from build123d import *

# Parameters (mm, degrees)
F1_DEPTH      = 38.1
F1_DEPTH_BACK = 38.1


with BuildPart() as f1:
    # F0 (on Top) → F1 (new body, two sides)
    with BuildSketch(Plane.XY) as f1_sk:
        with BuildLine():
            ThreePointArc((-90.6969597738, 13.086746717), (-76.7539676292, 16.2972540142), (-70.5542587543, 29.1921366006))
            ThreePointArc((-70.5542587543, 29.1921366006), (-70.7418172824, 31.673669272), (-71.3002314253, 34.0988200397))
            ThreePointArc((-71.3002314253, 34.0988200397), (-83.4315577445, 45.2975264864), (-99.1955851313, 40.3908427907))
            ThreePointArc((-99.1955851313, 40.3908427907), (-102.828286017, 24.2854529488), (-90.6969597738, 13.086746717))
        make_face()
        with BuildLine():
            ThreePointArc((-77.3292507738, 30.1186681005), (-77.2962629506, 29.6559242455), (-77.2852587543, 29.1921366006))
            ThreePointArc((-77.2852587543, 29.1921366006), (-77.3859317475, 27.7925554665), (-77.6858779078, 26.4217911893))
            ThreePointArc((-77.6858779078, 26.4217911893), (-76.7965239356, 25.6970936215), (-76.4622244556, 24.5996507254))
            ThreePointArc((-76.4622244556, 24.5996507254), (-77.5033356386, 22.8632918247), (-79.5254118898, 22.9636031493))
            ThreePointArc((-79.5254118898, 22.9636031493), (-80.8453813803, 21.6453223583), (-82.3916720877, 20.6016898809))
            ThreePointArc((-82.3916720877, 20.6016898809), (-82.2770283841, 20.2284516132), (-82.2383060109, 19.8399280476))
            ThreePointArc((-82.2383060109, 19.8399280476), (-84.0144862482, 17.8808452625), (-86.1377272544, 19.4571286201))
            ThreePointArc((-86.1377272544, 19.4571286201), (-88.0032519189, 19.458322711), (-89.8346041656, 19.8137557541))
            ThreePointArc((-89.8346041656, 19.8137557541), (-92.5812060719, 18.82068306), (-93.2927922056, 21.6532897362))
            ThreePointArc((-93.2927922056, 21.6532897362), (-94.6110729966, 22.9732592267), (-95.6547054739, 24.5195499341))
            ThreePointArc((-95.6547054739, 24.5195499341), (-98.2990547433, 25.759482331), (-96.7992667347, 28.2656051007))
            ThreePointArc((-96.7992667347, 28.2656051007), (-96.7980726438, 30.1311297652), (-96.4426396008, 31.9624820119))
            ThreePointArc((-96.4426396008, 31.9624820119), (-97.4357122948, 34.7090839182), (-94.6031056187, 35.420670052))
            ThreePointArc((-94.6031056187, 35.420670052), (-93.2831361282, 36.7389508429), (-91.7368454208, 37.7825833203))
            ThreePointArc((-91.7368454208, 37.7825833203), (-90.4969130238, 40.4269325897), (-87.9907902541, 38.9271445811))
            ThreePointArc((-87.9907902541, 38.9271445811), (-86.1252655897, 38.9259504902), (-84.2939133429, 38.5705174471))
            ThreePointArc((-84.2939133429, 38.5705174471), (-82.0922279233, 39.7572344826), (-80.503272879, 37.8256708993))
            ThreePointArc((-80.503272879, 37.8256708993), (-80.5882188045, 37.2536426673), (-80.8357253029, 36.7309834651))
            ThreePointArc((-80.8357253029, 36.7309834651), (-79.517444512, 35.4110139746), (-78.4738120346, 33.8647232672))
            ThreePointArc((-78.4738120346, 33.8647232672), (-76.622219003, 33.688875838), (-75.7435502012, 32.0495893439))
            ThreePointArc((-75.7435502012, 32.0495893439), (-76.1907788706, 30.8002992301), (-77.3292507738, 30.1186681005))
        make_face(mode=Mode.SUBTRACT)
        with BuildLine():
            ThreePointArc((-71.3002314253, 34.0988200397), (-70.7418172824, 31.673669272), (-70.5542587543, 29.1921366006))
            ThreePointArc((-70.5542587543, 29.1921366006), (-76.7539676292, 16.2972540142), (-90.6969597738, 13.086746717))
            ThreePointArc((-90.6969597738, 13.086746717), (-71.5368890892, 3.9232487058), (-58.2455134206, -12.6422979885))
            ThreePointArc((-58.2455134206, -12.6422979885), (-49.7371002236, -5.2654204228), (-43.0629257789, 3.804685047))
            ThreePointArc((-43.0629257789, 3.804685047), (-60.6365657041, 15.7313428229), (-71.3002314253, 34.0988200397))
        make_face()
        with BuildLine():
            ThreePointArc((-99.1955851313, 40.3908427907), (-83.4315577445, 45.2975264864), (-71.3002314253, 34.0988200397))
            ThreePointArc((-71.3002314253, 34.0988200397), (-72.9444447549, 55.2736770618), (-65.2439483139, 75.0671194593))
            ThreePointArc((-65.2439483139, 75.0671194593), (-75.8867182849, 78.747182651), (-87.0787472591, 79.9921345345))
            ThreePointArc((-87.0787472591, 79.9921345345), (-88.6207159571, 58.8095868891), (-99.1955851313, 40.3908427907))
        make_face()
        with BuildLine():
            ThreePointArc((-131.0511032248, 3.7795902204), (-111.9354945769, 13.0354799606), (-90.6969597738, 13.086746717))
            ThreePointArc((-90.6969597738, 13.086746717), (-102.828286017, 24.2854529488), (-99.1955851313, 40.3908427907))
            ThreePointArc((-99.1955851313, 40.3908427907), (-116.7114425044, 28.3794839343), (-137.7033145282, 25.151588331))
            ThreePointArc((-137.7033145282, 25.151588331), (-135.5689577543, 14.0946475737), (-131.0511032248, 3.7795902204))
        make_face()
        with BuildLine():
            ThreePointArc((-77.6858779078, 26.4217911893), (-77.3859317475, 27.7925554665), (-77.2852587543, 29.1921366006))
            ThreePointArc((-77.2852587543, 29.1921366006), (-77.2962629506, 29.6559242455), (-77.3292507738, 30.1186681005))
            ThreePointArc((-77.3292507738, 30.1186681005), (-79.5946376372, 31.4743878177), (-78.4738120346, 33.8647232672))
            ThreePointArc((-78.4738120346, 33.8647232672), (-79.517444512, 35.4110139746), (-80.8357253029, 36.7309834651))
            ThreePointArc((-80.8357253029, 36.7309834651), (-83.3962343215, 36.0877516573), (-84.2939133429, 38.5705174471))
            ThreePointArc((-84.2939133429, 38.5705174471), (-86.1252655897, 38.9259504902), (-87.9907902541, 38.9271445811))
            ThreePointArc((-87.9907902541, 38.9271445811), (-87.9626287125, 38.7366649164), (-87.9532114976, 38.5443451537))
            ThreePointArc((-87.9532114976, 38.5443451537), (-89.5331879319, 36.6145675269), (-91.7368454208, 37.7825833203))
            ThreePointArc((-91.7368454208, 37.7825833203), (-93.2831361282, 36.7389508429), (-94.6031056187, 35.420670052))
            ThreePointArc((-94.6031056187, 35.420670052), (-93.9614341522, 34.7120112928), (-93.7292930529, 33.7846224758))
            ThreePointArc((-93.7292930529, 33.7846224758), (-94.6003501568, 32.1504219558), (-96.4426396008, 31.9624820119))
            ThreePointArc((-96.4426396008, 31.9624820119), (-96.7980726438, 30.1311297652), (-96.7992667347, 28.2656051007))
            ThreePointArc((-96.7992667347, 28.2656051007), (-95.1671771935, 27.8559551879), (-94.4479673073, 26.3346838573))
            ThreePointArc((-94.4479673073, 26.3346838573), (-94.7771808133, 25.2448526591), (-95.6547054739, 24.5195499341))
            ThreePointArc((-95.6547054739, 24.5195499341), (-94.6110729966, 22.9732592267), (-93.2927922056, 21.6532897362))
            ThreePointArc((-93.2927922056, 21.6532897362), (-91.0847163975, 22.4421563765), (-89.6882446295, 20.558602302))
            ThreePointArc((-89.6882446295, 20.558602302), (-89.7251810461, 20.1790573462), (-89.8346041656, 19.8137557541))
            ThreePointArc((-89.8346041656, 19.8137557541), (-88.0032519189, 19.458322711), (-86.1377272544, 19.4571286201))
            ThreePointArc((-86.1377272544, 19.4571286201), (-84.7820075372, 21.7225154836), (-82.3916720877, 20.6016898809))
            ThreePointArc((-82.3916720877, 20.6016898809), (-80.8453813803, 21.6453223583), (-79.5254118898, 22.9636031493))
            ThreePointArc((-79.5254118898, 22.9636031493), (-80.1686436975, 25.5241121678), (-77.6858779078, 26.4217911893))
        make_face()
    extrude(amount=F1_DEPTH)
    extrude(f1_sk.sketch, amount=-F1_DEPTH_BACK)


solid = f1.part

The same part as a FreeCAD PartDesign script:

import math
import FreeCAD as App
import Part
import Sketcher

V = App.Vector
Q = App.Units.Quantity

doc = App.newDocument("Part")
body = doc.addObject("PartDesign::Body", "Body")

# Sketch on XY plane
sketch1 = doc.addObject("Sketcher::SketchObject", "Sketch")
body.addObject(sketch1)
sketch1.AttachmentSupport = (doc.XY_Plane, [""])
sketch1.MapMode = "FlatFace"
sketch1.addGeometry(Part.ArcOfCircle(Part.Circle(V(-101.2, -33.49, 0), V(0, 0, 1), 47.75), math.radians(26), math.radians(77)), False)
sketch1.addGeometry(Part.ArcOfCircle(Part.Circle(V(-87.06, 29.19, 0), V(0, 0, 1), 50.8), math.radians(-55), math.radians(-30)), False)
sketch1.addGeometry(Part.ArcOfCircle(Part.Circle(V(-25.71, 48.29, 0), V(0, 0, 1), 47.75), math.radians(146), math.radians(249)), False)
sketch1.addGeometry(Part.ArcOfCircle(Part.Circle(V(-87.06, 29.19, 0), V(0, 0, 1), 50.8), math.radians(65), math.radians(90)), False)
sketch1.addGeometry(Part.ArcOfCircle(Part.Circle(V(-134.28, 72.78, 0), V(0, 0, 1), 47.75), math.radians(-43), math.radians(9)), False)
sketch1.addGeometry(Part.ArcOfCircle(Part.Circle(V(-134.28, 72.78, 0), V(0, 0, 1), 47.75), math.radians(-94), math.radians(-43)), False)
sketch1.addGeometry(Part.ArcOfCircle(Part.Circle(V(-87.06, 29.19, 0), V(0, 0, 1), 50.8), math.radians(-175), math.radians(-150)), False)
sketch1.addGeometry(Part.ArcOfCircle(Part.Circle(V(-101.2, -33.49, 0), V(0, 0, 1), 47.75), math.radians(77), math.radians(129)), False)
sketch1.addGeometry(Part.ArcOfCircle(Part.Circle(V(-77.71, 32.05, 0), V(0, 0, 1), 1.97), math.radians(-79), math.radians(0)), False)
sketch1.addGeometry(Part.ArcOfCircle(Part.Circle(V(-77.71, 32.05, 0), V(0, 0, 1), 1.97), math.radians(113), math.radians(281)), False)
sketch1.addGeometry(Part.ArcOfCircle(Part.Circle(V(-77.71, 32.05, 0), V(0, 0, 1), 1.97), math.radians(0), math.radians(113)), False)
sketch1.addGeometry(Part.ArcOfCircle(Part.Circle(V(-78.43, 24.6, 0), V(0, 0, 1), 1.97), math.radians(0), math.radians(68)), False)
sketch1.addGeometry(Part.ArcOfCircle(Part.Circle(V(-78.43, 24.6, 0), V(0, 0, 1), 1.97), math.radians(68), math.radians(360)), False)
sketch1.addGeometry(Part.ArcOfCircle(Part.Circle(V(-84.21, 19.84, 0), V(0, 0, 1), 1.97), math.radians(0), math.radians(23)), False)
sketch1.addGeometry(Part.ArcOfCircle(Part.Circle(V(-84.21, 19.84, 0), V(0, 0, 1), 1.97), math.radians(-169), math.radians(0)), False)
sketch1.addGeometry(Part.ArcOfCircle(Part.Circle(V(-84.21, 19.84, 0), V(0, 0, 1), 1.97), math.radians(23), math.radians(191)), False)
sketch1.addGeometry(Part.ArcOfCircle(Part.Circle(V(-91.66, 20.56, 0), V(0, 0, 1), 1.97), math.radians(0), math.radians(338)), False)
sketch1.addGeometry(Part.ArcOfCircle(Part.Circle(V(-91.66, 20.56, 0), V(0, 0, 1), 1.97), math.radians(-22), math.radians(0)), False)
sketch1.addGeometry(Part.ArcOfCircle(Part.Circle(V(-96.42, 26.33, 0), V(0, 0, 1), 1.97), math.radians(101), math.radians(293)), False)
sketch1.addGeometry(Part.ArcOfCircle(Part.Circle(V(-96.42, 26.33, 0), V(0, 0, 1), 1.97), math.radians(0), math.radians(101)), False)
sketch1.addGeometry(Part.ArcOfCircle(Part.Circle(V(-96.42, 26.33, 0), V(0, 0, 1), 1.97), math.radians(-67), math.radians(0)), False)
sketch1.addGeometry(Part.ArcOfCircle(Part.Circle(V(-95.7, 33.78, 0), V(0, 0, 1), 1.97), math.radians(56), math.radians(248)), False)
sketch1.addGeometry(Part.ArcOfCircle(Part.Circle(V(-95.7, 33.78, 0), V(0, 0, 1), 1.97), math.radians(0), math.radians(56)), False)
sketch1.addGeometry(Part.ArcOfCircle(Part.Circle(V(-95.7, 33.78, 0), V(0, 0, 1), 1.97), math.radians(-112), math.radians(0)), False)
sketch1.addGeometry(Part.ArcOfCircle(Part.Circle(V(-89.92, 38.54, 0), V(0, 0, 1), 1.97), math.radians(11), math.radians(203)), False)
sketch1.addGeometry(Part.ArcOfCircle(Part.Circle(V(-89.92, 38.54, 0), V(0, 0, 1), 1.97), math.radians(0), math.radians(11.21)), False)
sketch1.addGeometry(Part.ArcOfCircle(Part.Circle(V(-89.92, 38.54, 0), V(0, 0, 1), 1.97), math.radians(-157), math.radians(0)), False)
sketch1.addGeometry(Part.ArcOfCircle(Part.Circle(V(-82.47, 37.83, 0), V(0, 0, 1), 1.97), math.radians(0), math.radians(158)), False)
sketch1.addGeometry(Part.ArcOfCircle(Part.Circle(V(-82.47, 37.83, 0), V(0, 0, 1), 1.97), math.radians(-34), math.radians(0)), False)
sketch1.addGeometry(Part.ArcOfCircle(Part.Circle(V(-82.47, 37.83, 0), V(0, 0, 1), 1.97), math.radians(158), math.radians(326)), False)
sketch1.addConstraint(Sketcher.Constraint("Coincident", 0, 1, 1, 1))
sketch1.addConstraint(Sketcher.Constraint("Coincident", 1, 2, 2, 2))
sketch1.addConstraint(Sketcher.Constraint("Coincident", 2, 1, 3, 1))
sketch1.addConstraint(Sketcher.Constraint("Coincident", 3, 2, 4, 2))
sketch1.addConstraint(Sketcher.Constraint("Tangent", 4, 1, 5, 2))
sketch1.addConstraint(Sketcher.Constraint("Coincident", 5, 1, 6, 1))
sketch1.addConstraint(Sketcher.Constraint("Coincident", 6, 2, 7, 2))
sketch1.addConstraint(Sketcher.Constraint("Tangent", 7, 1, 0, 2))
sketch1.addConstraint(Sketcher.Constraint("Tangent", 8, 1, 9, 2))
sketch1.addConstraint(Sketcher.Constraint("Tangent", 9, 1, 10, 2))
sketch1.addConstraint(Sketcher.Constraint("Tangent", 10, 1, 8, 2))
sketch1.addConstraint(Sketcher.Constraint("Tangent", 11, 1, 12, 2))
sketch1.addConstraint(Sketcher.Constraint("Coincident", 12, 1, 11, 2))
sketch1.addConstraint(Sketcher.Constraint("Tangent", 13, 1, 14, 2))
sketch1.addConstraint(Sketcher.Constraint("Tangent", 14, 1, 15, 2))
sketch1.addConstraint(Sketcher.Constraint("Tangent", 15, 1, 13, 2))
sketch1.addConstraint(Sketcher.Constraint("Tangent", 16, 1, 17, 2))
sketch1.addConstraint(Sketcher.Constraint("Coincident", 17, 1, 16, 2))
sketch1.addConstraint(Sketcher.Constraint("Tangent", 18, 1, 19, 2))
sketch1.addConstraint(Sketcher.Constraint("Tangent", 19, 1, 20, 2))
sketch1.addConstraint(Sketcher.Constraint("Tangent", 20, 1, 18, 2))
sketch1.addConstraint(Sketcher.Constraint("Tangent", 21, 1, 22, 2))
sketch1.addConstraint(Sketcher.Constraint("Tangent", 22, 1, 23, 2))
sketch1.addConstraint(Sketcher.Constraint("Tangent", 23, 1, 21, 2))
sketch1.addConstraint(Sketcher.Constraint("Tangent", 24, 1, 25, 2))
sketch1.addConstraint(Sketcher.Constraint("Tangent", 25, 1, 26, 2))
sketch1.addConstraint(Sketcher.Constraint("Tangent", 26, 1, 24, 2))
sketch1.addConstraint(Sketcher.Constraint("Tangent", 27, 1, 28, 2))
sketch1.addConstraint(Sketcher.Constraint("Tangent", 28, 1, 29, 2))
sketch1.addConstraint(Sketcher.Constraint("Tangent", 29, 1, 27, 2))
sketch1.addConstraint(Sketcher.Constraint("Coincident", 3, 3, 1, 3))
sketch1.addConstraint(Sketcher.Constraint("Coincident", 6, 3, 1, 3))
sketch1.addConstraint(Sketcher.Constraint("Equal", 0, 2))
sketch1.addConstraint(Sketcher.Constraint("Equal", 1, 3))
sketch1.addConstraint(Sketcher.Constraint("Equal", 2, 4))
sketch1.addConstraint(Sketcher.Constraint("Equal", 4, 5))
sketch1.addConstraint(Sketcher.Constraint("Equal", 3, 6))
sketch1.addConstraint(Sketcher.Constraint("Equal", 5, 7))
sketch1.addConstraint(Sketcher.Constraint("Equal", 10, 11))
sketch1.addConstraint(Sketcher.Constraint("Equal", 12, 13))
sketch1.addConstraint(Sketcher.Constraint("Equal", 15, 16))
sketch1.addConstraint(Sketcher.Constraint("Equal", 17, 18))
sketch1.addConstraint(Sketcher.Constraint("Equal", 20, 21))
sketch1.addConstraint(Sketcher.Constraint("Equal", 23, 24))
sketch1.addConstraint(Sketcher.Constraint("Equal", 26, 27))
sketch1.addConstraint(Sketcher.Constraint("Horizontal", 9, 3, 10, 1))
sketch1.addConstraint(Sketcher.Constraint("Horizontal", 12, 3, 11, 1))
sketch1.addConstraint(Sketcher.Constraint("Horizontal", 15, 3, 13, 1))
sketch1.addConstraint(Sketcher.Constraint("Horizontal", 17, 3, 16, 1))
sketch1.addConstraint(Sketcher.Constraint("Horizontal", 20, 3, 19, 1))
sketch1.addConstraint(Sketcher.Constraint("Horizontal", 23, 3, 22, 1))
sketch1.addConstraint(Sketcher.Constraint("Horizontal", 26, 3, 25, 1))
sketch1.addConstraint(Sketcher.Constraint("Horizontal", 29, 3, 27, 1))
sketch1.addConstraint(Sketcher.Constraint("Radius", 1, Q("2 in")))
sketch1.addConstraint(Sketcher.Constraint("Radius", 0, Q("1.88 in")))
sketch1.addConstraint(Sketcher.Constraint("Radius", 8, Q("0.0775 in")))
sketch1.addConstraint(Sketcher.Constraint("DistanceY", 0, 3, 2, 3, Q("3.2198999 in")))
sketch1.addConstraint(Sketcher.Constraint("DistanceX", 27, 3, 9, 1, Q("0.1574 in")))
sketch1.addConstraint(Sketcher.Constraint("DistanceX", 4, 3, 2, 3, Q("108.5773 mm")))
sketch1.addConstraint(Sketcher.Constraint("DistanceX", 11, 3, 1, 2, Q("35.367799 mm")))
sketch1.addConstraint(Sketcher.Constraint("DistanceX", 3, 2, 2, 1, Q("21.834799 mm")))
sketch1.addConstraint(Sketcher.Constraint("DistanceY", 6, 2, 5, 1, Q("21.371998 mm")))
sketch1.addConstraint(Sketcher.Constraint("DistanceX", 8, 3, 8, 1, Q("0.382799 mm")))
sketch1.addConstraint(Sketcher.Constraint("DistanceY", 12, 1, 8, 3, Q("5.627798 mm")))
sketch1.addConstraint(Sketcher.Constraint("DistanceY", 14, 1, 13, 3, Q("0.382799 mm")))
sketch1.addConstraint(Sketcher.Constraint("DistanceX", 17, 1, 13, 3, Q("5.627798 mm")))
sketch1.addConstraint(Sketcher.Constraint("DistanceX", 18, 1, 18, 3, Q("0.382799 mm")))
sketch1.addConstraint(Sketcher.Constraint("DistanceY", 24, 3, 24, 1, Q("0.382799 mm")))
sketch1.addConstraint(Sketcher.Constraint("DistanceX", 25, 1, 29, 1, Q("3.659298 mm")))
sketch1.addConstraint(Sketcher.Constraint("DistanceX", 1, 3, -1, 1, Q("87.064259 mm")))
sketch1.addConstraint(Sketcher.Constraint("DistanceY", -1, 1, 2, 3, Q("48.29046 mm")))
sketch1.addConstraint(Sketcher.Constraint("DistanceX", 8, 3, -1, 1, Q("77.71205 mm")))
sketch1.addConstraint(Sketcher.Constraint("DistanceY", -1, 1, 8, 3, Q("32.049589 mm")))
sketch1.addConstraint(Sketcher.Constraint("DistanceY", -1, 1, 11, 3, Q("24.599651 mm")))
sketch1.addConstraint(Sketcher.Constraint("DistanceY", -1, 1, 13, 3, Q("19.839928 mm")))
sketch1.addConstraint(Sketcher.Constraint("DistanceX", 24, 3, -1, 1, Q("89.921711 mm")))
sketch1.addConstraint(Sketcher.Constraint("DistanceY", -1, 1, 27, 3, Q("37.825671 mm")))
sketch1.addConstraint(Sketcher.Constraint("DistanceX", 2, 1, -1, 1, Q("65.243948 mm")))
sketch1.addConstraint(Sketcher.Constraint("DistanceY", -1, 1, 5, 1, Q("25.151588 mm")))
sketch1.addConstraint(Sketcher.Constraint("DistanceX", 7, 1, -1, 1, Q("90.69696 mm")))
sketch1.addConstraint(Sketcher.Constraint("DistanceY", -1, 1, 15, 1, Q("20.60169 mm")))
sketch1.addConstraint(Sketcher.Constraint("DistanceY", -1, 1, 20, 1, Q("24.51955 mm")))
sketch1.addConstraint(Sketcher.Constraint("DistanceY", -1, 1, 21, 1, Q("35.42067 mm")))
sketch1.addConstraint(Sketcher.Constraint("DistanceX", 23, 1, -1, 1, Q("96.44264 mm")))
sketch1.addConstraint(Sketcher.Constraint("DistanceX", 13, 3, 11, 3, Q("5.776082 mm")))
sketch1.addConstraint(Sketcher.Constraint("DistanceX", 16, 3, 13, 3, Q("7.449939 mm")))
sketch1.addConstraint(Sketcher.Constraint("DistanceY", 16, 3, 18, 3, Q("5.776082 mm")))
sketch1.addConstraint(Sketcher.Constraint("DistanceX", 18, 3, 6, 3, Q("9.352209 mm")))
sketch1.addConstraint(Sketcher.Constraint("DistanceY", 18, 3, 21, 3, Q("7.449939 mm")))
sketch1.addConstraint(Sketcher.Constraint("DistanceX", 21, 3, 24, 3, Q("5.776082 mm")))
sketch1.addConstraint(Sketcher.Constraint("DistanceY", 1, 3, 24, 3, Q("9.352209 mm")))
sketch1.addConstraint(Sketcher.Constraint("DistanceX", 24, 3, 27, 3, Q("7.449939 mm")))
sketch1.addConstraint(Sketcher.Constraint("DistanceY", 21, 3, 4, 1, Q("6.60622 mm")))
sketch1.addConstraint(Sketcher.Constraint("DistanceX", 5, 1, 4, 1, Q("38.507729 mm")))
sketch1.addConstraint(Sketcher.Constraint("DistanceY", 26, 1, 25, 3, Q("0.761762 mm")))
sketch1.addConstraint(Sketcher.Constraint("DistanceY", 9, 1, 28, 1, Q("2.86626 mm")))
pad1 = doc.addObject("PartDesign::Pad", "Pad")
body.addObject(pad1)
pad1.Profile = sketch1
pad1.Type = "TwoLengths"
pad1.Length = Q("1.5 in")
pad1.Length2 = Q("1.5 in")

doc.recompute()
